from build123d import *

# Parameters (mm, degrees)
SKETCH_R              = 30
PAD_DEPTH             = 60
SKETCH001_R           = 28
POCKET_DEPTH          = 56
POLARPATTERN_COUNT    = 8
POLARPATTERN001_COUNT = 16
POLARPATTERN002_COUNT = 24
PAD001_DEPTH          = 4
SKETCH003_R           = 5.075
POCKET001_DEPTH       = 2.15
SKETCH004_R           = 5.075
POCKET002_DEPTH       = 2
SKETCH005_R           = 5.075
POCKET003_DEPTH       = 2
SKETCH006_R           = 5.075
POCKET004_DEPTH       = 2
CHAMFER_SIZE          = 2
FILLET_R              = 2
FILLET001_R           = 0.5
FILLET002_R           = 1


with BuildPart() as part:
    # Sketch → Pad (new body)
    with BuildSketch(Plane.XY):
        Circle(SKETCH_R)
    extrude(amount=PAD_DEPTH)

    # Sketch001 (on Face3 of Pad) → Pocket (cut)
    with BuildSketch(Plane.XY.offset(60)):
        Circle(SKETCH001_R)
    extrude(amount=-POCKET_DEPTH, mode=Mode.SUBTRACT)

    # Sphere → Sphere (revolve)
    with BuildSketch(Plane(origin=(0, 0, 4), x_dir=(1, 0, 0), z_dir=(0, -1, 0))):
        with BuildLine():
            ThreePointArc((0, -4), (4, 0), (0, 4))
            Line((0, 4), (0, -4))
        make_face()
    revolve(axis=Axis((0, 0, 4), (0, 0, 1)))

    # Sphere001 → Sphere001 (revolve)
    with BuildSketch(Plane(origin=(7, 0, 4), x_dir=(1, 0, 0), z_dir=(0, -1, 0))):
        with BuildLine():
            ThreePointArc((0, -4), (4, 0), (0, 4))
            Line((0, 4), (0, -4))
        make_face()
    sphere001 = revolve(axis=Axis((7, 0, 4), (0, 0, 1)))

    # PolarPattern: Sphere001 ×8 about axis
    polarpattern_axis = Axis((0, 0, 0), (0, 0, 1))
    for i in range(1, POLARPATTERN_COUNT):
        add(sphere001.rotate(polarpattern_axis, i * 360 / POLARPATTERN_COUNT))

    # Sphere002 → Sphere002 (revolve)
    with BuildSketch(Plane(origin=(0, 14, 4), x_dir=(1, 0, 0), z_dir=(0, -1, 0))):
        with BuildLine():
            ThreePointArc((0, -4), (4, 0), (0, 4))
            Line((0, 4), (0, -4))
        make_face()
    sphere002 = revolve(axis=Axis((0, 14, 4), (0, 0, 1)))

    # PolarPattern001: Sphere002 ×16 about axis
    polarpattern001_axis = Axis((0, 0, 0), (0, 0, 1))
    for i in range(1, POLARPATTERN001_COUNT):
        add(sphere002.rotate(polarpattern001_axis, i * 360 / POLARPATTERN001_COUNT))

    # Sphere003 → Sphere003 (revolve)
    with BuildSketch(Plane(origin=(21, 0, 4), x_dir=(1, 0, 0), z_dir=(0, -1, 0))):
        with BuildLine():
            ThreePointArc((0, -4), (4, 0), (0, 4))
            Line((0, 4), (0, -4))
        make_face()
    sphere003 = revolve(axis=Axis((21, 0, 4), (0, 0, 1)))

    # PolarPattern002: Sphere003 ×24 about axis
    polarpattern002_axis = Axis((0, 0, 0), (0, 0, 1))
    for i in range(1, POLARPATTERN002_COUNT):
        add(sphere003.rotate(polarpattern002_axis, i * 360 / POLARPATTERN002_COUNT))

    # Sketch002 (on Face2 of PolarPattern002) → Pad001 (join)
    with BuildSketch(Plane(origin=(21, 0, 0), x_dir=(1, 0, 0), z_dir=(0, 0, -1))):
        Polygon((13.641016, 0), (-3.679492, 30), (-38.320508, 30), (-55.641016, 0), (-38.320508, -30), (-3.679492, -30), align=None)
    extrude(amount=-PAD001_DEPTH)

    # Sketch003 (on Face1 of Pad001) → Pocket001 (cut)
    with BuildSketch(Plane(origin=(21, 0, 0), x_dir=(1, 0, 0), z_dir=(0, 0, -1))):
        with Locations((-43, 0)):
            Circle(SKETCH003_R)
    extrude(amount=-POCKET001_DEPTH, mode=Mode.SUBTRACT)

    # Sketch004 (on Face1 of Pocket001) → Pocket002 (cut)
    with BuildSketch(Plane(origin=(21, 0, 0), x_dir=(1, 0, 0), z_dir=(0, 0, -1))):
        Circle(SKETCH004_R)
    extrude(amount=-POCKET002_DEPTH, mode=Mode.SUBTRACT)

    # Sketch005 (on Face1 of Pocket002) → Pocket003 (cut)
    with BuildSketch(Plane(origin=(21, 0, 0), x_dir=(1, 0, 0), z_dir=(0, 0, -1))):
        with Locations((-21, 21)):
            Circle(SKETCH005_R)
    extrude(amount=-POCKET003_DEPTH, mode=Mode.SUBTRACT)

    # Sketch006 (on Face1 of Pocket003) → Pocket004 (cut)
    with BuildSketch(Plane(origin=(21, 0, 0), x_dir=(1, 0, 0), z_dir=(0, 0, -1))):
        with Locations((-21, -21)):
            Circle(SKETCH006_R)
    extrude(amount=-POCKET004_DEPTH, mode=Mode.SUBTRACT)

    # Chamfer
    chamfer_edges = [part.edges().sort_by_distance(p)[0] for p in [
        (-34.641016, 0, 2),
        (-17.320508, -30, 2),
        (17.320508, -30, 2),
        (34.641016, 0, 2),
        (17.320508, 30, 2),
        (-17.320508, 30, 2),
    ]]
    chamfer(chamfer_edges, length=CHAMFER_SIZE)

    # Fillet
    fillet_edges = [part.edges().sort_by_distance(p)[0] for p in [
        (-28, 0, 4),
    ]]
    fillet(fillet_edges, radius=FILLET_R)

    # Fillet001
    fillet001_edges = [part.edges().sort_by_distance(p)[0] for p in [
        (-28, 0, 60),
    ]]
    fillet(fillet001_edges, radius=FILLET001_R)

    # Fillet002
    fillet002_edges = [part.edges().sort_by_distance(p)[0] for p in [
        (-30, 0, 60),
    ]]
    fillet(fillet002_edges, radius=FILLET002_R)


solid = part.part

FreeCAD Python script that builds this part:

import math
import FreeCAD as App
import Part
import Sketcher
from FreeCAD import Vector
Q = App.Units.Quantity


def edges_at(feature, points):
    """Names of the edges that pass closest to the given points."""
    edges = feature.Shape.Edges
    near = lambda p: min(range(len(edges)), key=lambda i: edges[i].distToShape(Part.Vertex(*p))[0])
    return sorted({f"Edge{near(p) + 1}" for p in points})


def add_polygon(sketch, points):
    """Adds a closed chain of lines whose ends are joined by coincident constraints."""
    first, n = sketch.GeometryCount, len(points)
    for a, b in zip(points, points[1:] + points[:1]):
        sketch.addGeometry(Part.LineSegment(App.Vector(*a, 0), App.Vector(*b, 0)), False)
    for i in range(n):
        sketch.addConstraint(Sketcher.Constraint("Coincident", first + i, 2, first + (i + 1) % n, 1))

doc = App.newDocument("Part")
body = doc.addObject("PartDesign::Body", "Body")

sketch1 = body.newObject("Sketcher::SketchObject", "Sketch")
sketch1.AttachmentSupport = (doc.getObject("XY_Plane"), [""])
sketch1.MapMode = "FlatFace"
sketch1.addGeometry(Part.Circle(Vector(0, 0, 0), Vector(0, 0, 1), 30), False)
sketch1.addConstraint(Sketcher.Constraint("Coincident", 0, 3, -1, 1))
sketch1.addConstraint(Sketcher.Constraint("Diameter", 0, 60.0))
pad1 = body.newObject("PartDesign::Pad", "Pad")
pad1.Profile = sketch1
pad1.Length = 60

sketch2 = body.newObject("Sketcher::SketchObject", "Sketch001")
sketch2.AttachmentSupport = (doc.getObject("XY_Plane"), [""])
sketch2.MapMode = "FlatFace"
sketch2.AttachmentOffset = App.Placement(Vector(0, 0, 60), App.Rotation())
sketch2.addGeometry(Part.Circle(Vector(0, 0, 0), Vector(0, 0, 1), 28), False)
sketch2.addConstraint(Sketcher.Constraint("Coincident", 0, 3, -1, 1))
sketch2.addConstraint(Sketcher.Constraint("Diameter", 0, 56.0))
pocket1 = body.newObject("PartDesign::Pocket", "Pocket")
pocket1.Profile = sketch2
pocket1.Length = 56

sketch3 = body.newObject("Sketcher::SketchObject", "Sketch002")
sketch3.AttachmentSupport = (doc.getObject("XZ_Plane"), [""])
sketch3.MapMode = "FlatFace"
sketch3.addGeometry(Part.ArcOfCircle(Part.Circle(Vector(0, 4, 0), Vector(0, 0, 1), 4), math.radians(-90), math.radians(90)), False)
sketch3.addGeometry(Part.LineSegment(Vector(0, 8, 0), Vector(0, 0, 0)), False)
sketch3.addConstraint(Sketcher.Constraint("Coincident", 0, 1, 1, 2))
sketch3.addConstraint(Sketcher.Constraint("Coincident", 1, 1, 0, 2))
sketch3.addConstraint(Sketcher.Constraint("Vertical", 1))
sketch3.addConstraint(Sketcher.Constraint("Coincident", 0, 1, -1, 1))
sketch3.addConstraint(Sketcher.Constraint("PointOnObject", 0, 3, -2))
sketch3.addConstraint(Sketcher.Constraint("Radius", 0, 4.0))
revolution = body.newObject("PartDesign::Revolution", "Revolution")
revolution.Profile = sketch3
revolution.ReferenceAxis = (sketch3, ["V_Axis"])
revolution.Angle = 360

sketch4 = body.newObject("Sketcher::SketchObject", "Sketch003")
sketch4.AttachmentSupport = (doc.getObject("XZ_Plane"), [""])
sketch4.MapMode = "FlatFace"
sketch4.addGeometry(Part.ArcOfCircle(Part.Circle(Vector(7, 4, 0), Vector(0, 0, 1), 4), math.radians(-90), math.radians(90)), False)
sketch4.addGeometry(Part.LineSegment(Vector(7, 8, 0), Vector(7, 0, 0)), False)
sketch4.addGeometry(Part.LineSegment(Vector(7, 0, 0), Vector(7, 8, 0)), True)
sketch4.addConstraint(Sketcher.Constraint("Coincident", 0, 1, 1, 2))
sketch4.addConstraint(Sketcher.Constraint("Coincident", 1, 1, 0, 2))
sketch4.addConstraint(Sketcher.Constraint("Vertical", 1))
sketch4.addConstraint(Sketcher.Constraint("Vertical", 2))
sketch4.addConstraint(Sketcher.Constraint("Coincident", 2, 1, 0, 1))
sketch4.addConstraint(Sketcher.Constraint("PointOnObject", 0, 1, -1))
sketch4.addConstraint(Sketcher.Constraint("Equal", 1, 2))
sketch4.addConstraint(Sketcher.Constraint("Radius", 0, 4.0))
sketch4.addConstraint(Sketcher.Constraint("DistanceX", -1, 1, 0, 3, 7.0))
sketch4.addConstraint(Sketcher.Constraint("DistanceX", -1, 1, 0, 1, 7.0))
revolution2 = body.newObject("PartDesign::Revolution", "Revolution001")
revolution2.Profile = sketch4
revolution2.ReferenceAxis = (sketch4, ["Axis0"])
revolution2.Angle = 360
doc.recompute()

polarpattern = body.newObject("PartDesign::PolarPattern", "PolarPattern")
polarpattern.Originals = [revolution2]
polarpattern.Axis = (doc.getObject("Z_Axis"), [""])
polarpattern.Angle = 360
polarpattern.Occurrences = 8
body.Tip = polarpattern

sketch5 = body.newObject("Sketcher::SketchObject", "Sketch004")
sketch5.AttachmentSupport = (doc.getObject("XZ_Plane"), [""])
sketch5.MapMode = "FlatFace"
sketch5.AttachmentOffset = App.Placement(Vector(0, 0, -14), App.Rotation())
sketch5.addGeometry(Part.ArcOfCircle(Part.Circle(Vector(0, 4, 0), Vector(0, 0, 1), 4), math.radians(-90), math.radians(90)), False)
sketch5.addGeometry(Part.LineSegment(Vector(0, 8, 0), Vector(0, 0, 0)), False)
sketch5.addConstraint(Sketcher.Constraint("Coincident", 0, 1, 1, 2))
sketch5.addConstraint(Sketcher.Constraint("Coincident", 1, 1, 0, 2))
sketch5.addConstraint(Sketcher.Constraint("Vertical", 1))
sketch5.addConstraint(Sketcher.Constraint("Coincident", 0, 1, -1, 1))
sketch5.addConstraint(Sketcher.Constraint("PointOnObject", 0, 3, -2))
sketch5.addConstraint(Sketcher.Constraint("Radius", 0, 4.0))
revolution3 = body.newObject("PartDesign::Revolution", "Revolution002")
revolution3.Profile = sketch5
revolution3.ReferenceAxis = (sketch5, ["V_Axis"])
revolution3.Angle = 360
doc.recompute()

polarpattern2 = body.newObject("PartDesign::PolarPattern", "PolarPattern001")
polarpattern2.Originals = [revolution3]
polarpattern2.Axis = (doc.getObject("Z_Axis"), [""])
polarpattern2.Angle = 360
polarpattern2.Occurrences = 16
body.Tip = polarpattern2

sketch6 = body.newObject("Sketcher::SketchObject", "Sketch005")
sketch6.AttachmentSupport = (doc.getObject("XZ_Plane"), [""])
sketch6.MapMode = "FlatFace"
sketch6.addGeometry(Part.ArcOfCircle(Part.Circle(Vector(21, 4, 0), Vector(0, 0, 1), 4), math.radians(-90), math.radians(90)), False)
sketch6.addGeometry(Part.LineSegment(Vector(21, 8, 0), Vector(21, 0, 0)), False)
sketch6.addGeometry(Part.LineSegment(Vector(21, 0, 0), Vector(21, 8, 0)), True)
sketch6.addConstraint(Sketcher.Constraint("Coincident", 0, 1, 1, 2))
sketch6.addConstraint(Sketcher.Constraint("Coincident", 1, 1, 0, 2))
sketch6.addConstraint(Sketcher.Constraint("Vertical", 1))
sketch6.addConstraint(Sketcher.Constraint("Vertical", 2))
sketch6.addConstraint(Sketcher.Constraint("Coincident", 2, 1, 0, 1))
sketch6.addConstraint(Sketcher.Constraint("PointOnObject", 0, 1, -1))
sketch6.addConstraint(Sketcher.Constraint("Equal", 1, 2))
sketch6.addConstraint(Sketcher.Constraint("Radius", 0, 4.0))
sketch6.addConstraint(Sketcher.Constraint("DistanceX", -1, 1, 0, 3, 21.0))
sketch6.addConstraint(Sketcher.Constraint("DistanceX", -1, 1, 0, 1, 21.0))
revolution4 = body.newObject("PartDesign::Revolution", "Revolution003")
revolution4.Profile = sketch6
revolution4.ReferenceAxis = (sketch6, ["Axis0"])
revolution4.Angle = 360
doc.recompute()

polarpattern3 = body.newObject("PartDesign::PolarPattern", "PolarPattern002")
polarpattern3.Originals = [revolution4]
polarpattern3.Axis = (doc.getObject("Z_Axis"), [""])
polarpattern3.Angle = 360
polarpattern3.Occurrences = 24
body.Tip = polarpattern3

sketch7 = body.newObject("Sketcher::SketchObject", "Sketch006")
sketch7.AttachmentSupport = (doc.getObject("XY_Plane"), [""])
sketch7.MapMode = "FlatFace"
add_polygon(sketch7, [(34.641016, 0), (17.320508, -30), (-17.320508, -30), (-34.641016, 0), (-17.320508, 30), (17.320508, 30)])
sketch7.addConstraint(Sketcher.Constraint("Horizontal", 1))
sketch7.addConstraint(Sketcher.Constraint("Horizontal", 4))
sketch7.addConstraint(Sketcher.Constraint("Symmetric", 0, 2, 3, 2, -1, 1))
sketch7.addConstraint(Sketcher.Constraint("Symmetric", 2, 2, 5, 2, -1, 1))
sketch7.addConstraint(Sketcher.Constraint("PointOnObject", 2, 2, -1))
sketch7.addConstraint(Sketcher.Constraint("Parallel", 2, 5))
sketch7.addConstraint(Sketcher.Constraint("Vertical", 1, 2, 3, 2))
sketch7.addConstraint(Sketcher.Constraint("Angle", 0, Q("-120 deg")))
sketch7.addConstraint(Sketcher.Constraint("DistanceY", 0, 2, -1, 1, 30.0))
sketch7.addConstraint(Sketcher.Constraint("DistanceX", 1, 2, 1, 1, 34.641016))
pad2 = body.newObject("PartDesign::Pad", "Pad001")
pad2.Profile = sketch7
pad2.Length = 4

sketch8 = body.newObject("Sketcher::SketchObject", "Sketch007")
sketch8.AttachmentSupport = (doc.getObject("XY_Plane"), [""])
sketch8.MapMode = "FlatFace"
sketch8.addGeometry(Part.Circle(Vector(-22, 0, 0), Vector(0, 0, 1), 5.075), False)
sketch8.addConstraint(Sketcher.Constraint("PointOnObject", 0, 3, -1))
sketch8.addConstraint(Sketcher.Constraint("Diameter", 0, 10.15))
sketch8.addConstraint(Sketcher.Constraint("DistanceX", 0, 3, -1, 1, 22.0))
pocket2 = body.newObject("PartDesign::Pocket", "Pocket001")
pocket2.Profile = sketch8
pocket2.Length = 2.15
pocket2.Reversed = True

sketch9 = body.newObject("Sketcher::SketchObject", "Sketch008")
sketch9.AttachmentSupport = (doc.getObject("XY_Plane"), [""])
sketch9.MapMode = "FlatFace"
sketch9.addGeometry(Part.Circle(Vector(21, 0, 0), Vector(0, 0, 1), 5.075), False)
sketch9.addConstraint(Sketcher.Constraint("PointOnObject", 0, 3, -1))
sketch9.addConstraint(Sketcher.Constraint("Diameter", 0, 10.15))
sketch9.addConstraint(Sketcher.Constraint("DistanceX", -1, 1, 0, 3, 21.0))
pocket3 = body.newObject("PartDesign::Pocket", "Pocket002")
pocket3.Profile = sketch9
pocket3.Length = 2
pocket3.Reversed = True

sketch10 = body.newObject("Sketcher::SketchObject", "Sketch009")
sketch10.AttachmentSupport = (doc.getObject("XY_Plane"), [""])
sketch10.MapMode = "FlatFace"
sketch10.addGeometry(Part.Circle(Vector(0, -21, 0), Vector(0, 0, 1), 5.075), False)
sketch10.addConstraint(Sketcher.Constraint("PointOnObject", 0, 3, -2))
sketch10.addConstraint(Sketcher.Constraint("Diameter", 0, 10.15))
sketch10.addConstraint(Sketcher.Constraint("DistanceY", 0, 3, -1, 1, 21.0))
pocket4 = body.newObject("PartDesign::Pocket", "Pocket003")
pocket4.Profile = sketch10
pocket4.Length = 2
pocket4.Reversed = True

sketch11 = body.newObject("Sketcher::SketchObject", "Sketch010")
sketch11.AttachmentSupport = (doc.getObject("XY_Plane"), [""])
sketch11.MapMode = "FlatFace"
sketch11.addGeometry(Part.Circle(Vector(0, 21, 0), Vector(0, 0, 1), 5.075), False)
sketch11.addConstraint(Sketcher.Constraint("PointOnObject", 0, 3, -2))
sketch11.addConstraint(Sketcher.Constraint("Diameter", 0, 10.15))
sketch11.addConstraint(Sketcher.Constraint("DistanceY", -1, 1, 0, 3, 21.0))
pocket5 = body.newObject("PartDesign::Pocket", "Pocket004")
pocket5.Profile = sketch11
pocket5.Length = 2
pocket5.Reversed = True
doc.recompute()

chamfer = body.newObject("PartDesign::Chamfer", "Chamfer")
chamfer.Base = (pocket5, edges_at(pocket5, [
    (-34.641, 0, 2),
    (-17.321, -30, 2),
    (17.321, -30, 2),
    (34.641, 0, 2),
    (17.321, 30, 2),
    (-17.321, 30, 2),
]))
chamfer.Size = 2
doc.recompute()

fillet = body.newObject("PartDesign::Fillet", "Fillet")
fillet.Base = (chamfer, edges_at(chamfer, [(-28, 0, 4)]))
fillet.Radius = 2
doc.recompute()

fillet2 = body.newObject("PartDesign::Fillet", "Fillet001")
fillet2.Base = (fillet, edges_at(fillet, [(-28, 0, 60)]))
fillet2.Radius = 0.5
doc.recompute()

fillet3 = body.newObject("PartDesign::Fillet", "Fillet002")
fillet3.Base = (fillet2, edges_at(fillet2, [(-30, 0, 60)]))
fillet3.Radius = 1

doc.recompute()
